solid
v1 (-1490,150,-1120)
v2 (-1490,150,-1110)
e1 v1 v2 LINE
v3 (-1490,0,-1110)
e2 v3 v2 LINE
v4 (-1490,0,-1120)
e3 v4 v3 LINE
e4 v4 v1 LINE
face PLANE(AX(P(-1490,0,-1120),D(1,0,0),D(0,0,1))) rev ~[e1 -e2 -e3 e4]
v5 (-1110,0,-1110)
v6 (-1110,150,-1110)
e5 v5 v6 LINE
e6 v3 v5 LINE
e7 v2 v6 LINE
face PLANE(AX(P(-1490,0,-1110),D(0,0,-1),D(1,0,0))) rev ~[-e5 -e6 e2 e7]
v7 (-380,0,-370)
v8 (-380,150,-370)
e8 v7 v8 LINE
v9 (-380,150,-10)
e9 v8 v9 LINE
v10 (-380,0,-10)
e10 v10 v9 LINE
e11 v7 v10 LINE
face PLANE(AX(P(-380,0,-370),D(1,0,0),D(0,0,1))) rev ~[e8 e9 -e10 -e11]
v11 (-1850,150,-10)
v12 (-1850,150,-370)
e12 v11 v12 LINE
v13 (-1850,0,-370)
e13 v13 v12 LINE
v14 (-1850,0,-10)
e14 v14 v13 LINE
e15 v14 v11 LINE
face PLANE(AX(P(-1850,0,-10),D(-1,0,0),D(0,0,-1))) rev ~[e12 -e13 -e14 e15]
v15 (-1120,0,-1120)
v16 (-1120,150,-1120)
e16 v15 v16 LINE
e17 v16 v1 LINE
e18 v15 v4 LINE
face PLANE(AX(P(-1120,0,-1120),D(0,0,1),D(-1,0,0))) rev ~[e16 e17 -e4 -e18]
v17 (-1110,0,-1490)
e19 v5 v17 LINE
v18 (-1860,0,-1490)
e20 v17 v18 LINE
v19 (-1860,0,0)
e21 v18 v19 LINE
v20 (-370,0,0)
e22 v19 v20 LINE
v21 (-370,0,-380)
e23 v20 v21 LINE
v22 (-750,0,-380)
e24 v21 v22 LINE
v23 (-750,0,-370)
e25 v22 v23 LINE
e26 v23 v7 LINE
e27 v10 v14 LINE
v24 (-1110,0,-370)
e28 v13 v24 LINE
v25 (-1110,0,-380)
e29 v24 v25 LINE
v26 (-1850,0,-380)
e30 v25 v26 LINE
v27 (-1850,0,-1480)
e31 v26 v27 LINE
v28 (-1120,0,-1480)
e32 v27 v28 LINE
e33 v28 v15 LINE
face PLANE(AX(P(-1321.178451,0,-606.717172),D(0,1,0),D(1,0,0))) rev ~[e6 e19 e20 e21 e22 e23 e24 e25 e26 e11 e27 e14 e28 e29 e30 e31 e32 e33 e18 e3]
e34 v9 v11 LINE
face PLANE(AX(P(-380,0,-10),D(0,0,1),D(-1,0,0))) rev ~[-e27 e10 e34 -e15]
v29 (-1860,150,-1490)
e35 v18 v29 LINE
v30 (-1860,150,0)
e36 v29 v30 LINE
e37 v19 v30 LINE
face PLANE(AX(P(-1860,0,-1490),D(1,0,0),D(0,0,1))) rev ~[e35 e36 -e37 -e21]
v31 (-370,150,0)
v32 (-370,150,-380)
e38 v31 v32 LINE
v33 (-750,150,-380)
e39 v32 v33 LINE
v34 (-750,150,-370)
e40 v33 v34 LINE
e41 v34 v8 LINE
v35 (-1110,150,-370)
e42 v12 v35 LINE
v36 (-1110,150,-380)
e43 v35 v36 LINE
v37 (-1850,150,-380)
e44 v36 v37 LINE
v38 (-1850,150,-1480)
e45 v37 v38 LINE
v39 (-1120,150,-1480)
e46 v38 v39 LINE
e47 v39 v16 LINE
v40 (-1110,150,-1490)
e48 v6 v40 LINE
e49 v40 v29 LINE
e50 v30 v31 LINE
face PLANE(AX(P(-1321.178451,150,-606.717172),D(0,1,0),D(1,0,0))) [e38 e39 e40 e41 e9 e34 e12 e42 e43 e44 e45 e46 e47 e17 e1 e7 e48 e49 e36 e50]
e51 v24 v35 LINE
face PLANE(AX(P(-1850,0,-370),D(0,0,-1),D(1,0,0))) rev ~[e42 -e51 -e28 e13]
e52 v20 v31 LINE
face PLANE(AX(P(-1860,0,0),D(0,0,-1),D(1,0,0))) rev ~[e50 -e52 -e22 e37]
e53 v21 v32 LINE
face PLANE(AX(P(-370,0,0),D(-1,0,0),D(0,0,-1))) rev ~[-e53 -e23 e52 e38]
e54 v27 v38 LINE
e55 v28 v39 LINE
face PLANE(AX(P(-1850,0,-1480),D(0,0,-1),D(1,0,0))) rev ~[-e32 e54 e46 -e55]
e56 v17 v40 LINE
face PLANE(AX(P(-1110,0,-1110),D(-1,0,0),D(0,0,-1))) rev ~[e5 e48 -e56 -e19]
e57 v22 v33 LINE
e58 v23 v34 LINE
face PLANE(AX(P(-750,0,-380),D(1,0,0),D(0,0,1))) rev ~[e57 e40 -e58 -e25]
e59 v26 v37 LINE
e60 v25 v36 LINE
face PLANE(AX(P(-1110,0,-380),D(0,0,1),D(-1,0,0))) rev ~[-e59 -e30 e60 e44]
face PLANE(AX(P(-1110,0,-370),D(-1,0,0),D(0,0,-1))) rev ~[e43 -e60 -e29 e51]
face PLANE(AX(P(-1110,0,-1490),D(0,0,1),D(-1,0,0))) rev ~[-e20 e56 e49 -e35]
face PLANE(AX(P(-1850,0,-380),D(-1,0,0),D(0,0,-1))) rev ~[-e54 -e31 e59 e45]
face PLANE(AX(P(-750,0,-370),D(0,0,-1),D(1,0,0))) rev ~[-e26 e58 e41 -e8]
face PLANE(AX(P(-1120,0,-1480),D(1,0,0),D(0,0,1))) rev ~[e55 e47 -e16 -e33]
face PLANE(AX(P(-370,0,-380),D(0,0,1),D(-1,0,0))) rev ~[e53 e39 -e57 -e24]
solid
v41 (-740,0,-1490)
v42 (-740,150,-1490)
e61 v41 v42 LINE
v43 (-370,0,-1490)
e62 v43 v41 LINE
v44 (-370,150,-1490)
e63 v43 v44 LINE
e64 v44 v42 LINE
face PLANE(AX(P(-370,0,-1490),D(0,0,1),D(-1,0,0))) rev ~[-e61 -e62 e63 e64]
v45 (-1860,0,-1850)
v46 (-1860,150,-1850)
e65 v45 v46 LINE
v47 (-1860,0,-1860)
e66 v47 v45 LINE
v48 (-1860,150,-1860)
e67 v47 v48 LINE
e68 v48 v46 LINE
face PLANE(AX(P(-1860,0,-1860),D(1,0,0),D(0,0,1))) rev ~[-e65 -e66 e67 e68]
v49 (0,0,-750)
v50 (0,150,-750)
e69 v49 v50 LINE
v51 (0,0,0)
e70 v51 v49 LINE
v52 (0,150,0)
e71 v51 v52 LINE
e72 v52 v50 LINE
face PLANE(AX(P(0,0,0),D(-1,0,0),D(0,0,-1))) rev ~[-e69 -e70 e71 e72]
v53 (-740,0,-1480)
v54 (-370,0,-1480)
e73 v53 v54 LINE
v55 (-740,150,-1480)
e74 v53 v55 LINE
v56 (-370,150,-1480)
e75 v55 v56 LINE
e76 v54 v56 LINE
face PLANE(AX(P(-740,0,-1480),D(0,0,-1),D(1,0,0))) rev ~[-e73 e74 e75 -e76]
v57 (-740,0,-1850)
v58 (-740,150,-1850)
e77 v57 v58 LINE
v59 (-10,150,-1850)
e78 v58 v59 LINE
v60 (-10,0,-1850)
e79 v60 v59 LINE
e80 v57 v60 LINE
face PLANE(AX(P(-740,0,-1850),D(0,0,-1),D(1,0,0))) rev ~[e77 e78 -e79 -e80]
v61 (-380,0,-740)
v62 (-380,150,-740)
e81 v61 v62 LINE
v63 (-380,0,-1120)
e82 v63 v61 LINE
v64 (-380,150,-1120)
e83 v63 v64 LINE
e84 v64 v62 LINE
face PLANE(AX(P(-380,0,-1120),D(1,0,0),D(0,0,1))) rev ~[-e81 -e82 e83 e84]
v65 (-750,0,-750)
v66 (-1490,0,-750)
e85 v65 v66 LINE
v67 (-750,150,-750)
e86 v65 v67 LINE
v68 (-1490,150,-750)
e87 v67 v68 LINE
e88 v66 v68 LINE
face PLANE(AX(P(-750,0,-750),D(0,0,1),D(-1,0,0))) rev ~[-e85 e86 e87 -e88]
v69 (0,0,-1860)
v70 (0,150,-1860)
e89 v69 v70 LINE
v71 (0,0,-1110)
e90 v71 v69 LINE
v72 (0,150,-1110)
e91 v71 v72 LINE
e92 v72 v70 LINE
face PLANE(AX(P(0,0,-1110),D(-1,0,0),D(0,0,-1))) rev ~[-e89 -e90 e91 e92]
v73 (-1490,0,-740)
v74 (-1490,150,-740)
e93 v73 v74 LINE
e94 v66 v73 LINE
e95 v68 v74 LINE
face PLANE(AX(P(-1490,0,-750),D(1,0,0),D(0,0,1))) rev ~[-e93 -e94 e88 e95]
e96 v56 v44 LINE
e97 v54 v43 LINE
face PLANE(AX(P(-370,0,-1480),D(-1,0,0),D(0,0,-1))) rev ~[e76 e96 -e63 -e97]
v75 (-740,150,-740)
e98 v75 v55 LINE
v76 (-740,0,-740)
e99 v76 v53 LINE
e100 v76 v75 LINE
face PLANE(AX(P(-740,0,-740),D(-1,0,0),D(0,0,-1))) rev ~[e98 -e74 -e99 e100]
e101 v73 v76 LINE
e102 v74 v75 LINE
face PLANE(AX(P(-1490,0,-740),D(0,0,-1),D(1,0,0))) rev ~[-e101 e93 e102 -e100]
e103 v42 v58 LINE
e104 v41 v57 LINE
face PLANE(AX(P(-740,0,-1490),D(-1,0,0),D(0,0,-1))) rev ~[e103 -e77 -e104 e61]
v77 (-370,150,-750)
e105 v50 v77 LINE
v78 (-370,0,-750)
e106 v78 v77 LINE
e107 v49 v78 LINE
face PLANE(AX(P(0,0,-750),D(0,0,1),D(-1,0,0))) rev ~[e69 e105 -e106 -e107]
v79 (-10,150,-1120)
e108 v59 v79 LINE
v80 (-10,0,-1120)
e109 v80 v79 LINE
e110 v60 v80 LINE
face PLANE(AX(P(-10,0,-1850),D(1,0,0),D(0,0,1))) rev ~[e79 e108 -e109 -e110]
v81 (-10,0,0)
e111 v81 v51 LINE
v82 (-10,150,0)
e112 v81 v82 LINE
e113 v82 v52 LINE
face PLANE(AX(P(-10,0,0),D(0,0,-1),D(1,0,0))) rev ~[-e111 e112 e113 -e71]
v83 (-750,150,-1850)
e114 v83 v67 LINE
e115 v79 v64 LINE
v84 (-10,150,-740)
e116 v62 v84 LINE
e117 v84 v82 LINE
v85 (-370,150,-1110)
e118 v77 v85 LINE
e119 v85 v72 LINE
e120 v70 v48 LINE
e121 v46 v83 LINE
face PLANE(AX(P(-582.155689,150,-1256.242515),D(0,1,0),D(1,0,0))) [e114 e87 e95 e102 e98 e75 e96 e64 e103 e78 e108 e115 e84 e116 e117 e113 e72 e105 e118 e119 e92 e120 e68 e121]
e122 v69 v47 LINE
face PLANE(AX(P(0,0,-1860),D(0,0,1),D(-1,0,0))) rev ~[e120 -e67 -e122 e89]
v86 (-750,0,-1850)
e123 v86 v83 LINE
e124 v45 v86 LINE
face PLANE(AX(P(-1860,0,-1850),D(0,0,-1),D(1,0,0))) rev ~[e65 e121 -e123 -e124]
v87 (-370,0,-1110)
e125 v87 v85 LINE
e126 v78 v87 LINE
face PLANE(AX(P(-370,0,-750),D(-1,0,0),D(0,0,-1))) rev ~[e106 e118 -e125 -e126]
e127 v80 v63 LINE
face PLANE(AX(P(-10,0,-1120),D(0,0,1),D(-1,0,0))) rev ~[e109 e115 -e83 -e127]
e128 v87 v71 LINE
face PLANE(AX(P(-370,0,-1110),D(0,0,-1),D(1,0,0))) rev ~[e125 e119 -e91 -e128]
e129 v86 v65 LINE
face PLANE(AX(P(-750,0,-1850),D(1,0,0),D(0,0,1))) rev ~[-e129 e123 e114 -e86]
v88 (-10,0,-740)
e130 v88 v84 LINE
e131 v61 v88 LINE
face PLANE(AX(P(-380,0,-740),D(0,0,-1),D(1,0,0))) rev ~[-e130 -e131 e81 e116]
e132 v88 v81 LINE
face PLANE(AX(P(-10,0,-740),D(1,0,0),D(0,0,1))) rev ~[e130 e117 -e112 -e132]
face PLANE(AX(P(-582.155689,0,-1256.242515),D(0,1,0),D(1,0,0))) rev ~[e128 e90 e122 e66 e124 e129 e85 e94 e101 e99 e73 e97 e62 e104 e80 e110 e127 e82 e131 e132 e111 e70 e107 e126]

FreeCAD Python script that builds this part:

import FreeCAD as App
import Part
import Sketcher
from FreeCAD import Vector


def add_polygon(sketch, points):
    """Adds a closed chain of lines whose ends are joined by coincident constraints."""
    first, n = sketch.GeometryCount, len(points)
    for a, b in zip(points, points[1:] + points[:1]):
        sketch.addGeometry(Part.LineSegment(App.Vector(*a, 0), App.Vector(*b, 0)), False)
    for i in range(n):
        sketch.addConstraint(Sketcher.Constraint("Coincident", first + i, 2, first + (i + 1) % n, 1))

doc = App.newDocument("Part")
params = doc.addObject("Spreadsheet::Sheet", "Params")
for row, (alias, value) in enumerate([
    ("sketch1_width", "1860 mm"),
    ("sketch1_width2", "1110 mm"),
    ("sketch1_width3", "740 mm"),
    ("sketch1_width4", "750 mm"),
    ("sketch1_height", "1100 mm"),
    ("pad1_length", "150 mm"),
    ("sketch2_width", "370 mm"),
    ("sketch2_width2", "1470 mm"),
    ("sketch2_width3", "740 mm"),
    ("sketch2_width4", "730 mm"),
    ("sketch2_width5", "750 mm"),
    ("pad2_length", "150 mm"),
], start=1):
    params.set(f"A{row}", alias)
    params.set(f"B{row}", "=" + value)
    params.setAlias(f"B{row}", alias)

body = doc.addObject("PartDesign::Body", "Body")

sketch1 = doc.addObject("Sketcher::SketchObject", "Sketch")
body.addObject(sketch1)
sketch1.AttachmentSupport = (doc.XZ_Plane, [""])
sketch1.MapMode = "FlatFace"
add_polygon(sketch1, [(0, -1860), (-1860, -1860), (-1860, -1850), (-750, -1850), (-750, -750), (-1490, -750), (-1490, -740), (-740, -740), (-740, -1480), (-370, -1480), (-370, -1490), (-740, -1490), (-740, -1850), (-10, -1850), (-10, -1120), (-380, -1120), (-380, -740), (-10, -740), (-10, 0), (0, 0), (0, -750), (-370, -750), (-370, -1110), (0, -1110)])
sketch1.addConstraint([
    Sketcher.Constraint("Horizontal", 0),
    Sketcher.Constraint("Vertical", 1),
    Sketcher.Constraint("Horizontal", 2),
    Sketcher.Constraint("Vertical", 3),
    Sketcher.Constraint("Horizontal", 4),
    Sketcher.Constraint("Vertical", 5),
    Sketcher.Constraint("Horizontal", 6),
    Sketcher.Constraint("Vertical", 7),
    Sketcher.Constraint("Horizontal", 8),
    Sketcher.Constraint("Vertical", 9),
    Sketcher.Constraint("Horizontal", 10),
    Sketcher.Constraint("Vertical", 11),
    Sketcher.Constraint("Horizontal", 12),
    Sketcher.Constraint("Vertical", 13),
    Sketcher.Constraint("Horizontal", 14),
    Sketcher.Constraint("Vertical", 15),
    Sketcher.Constraint("Horizontal", 16),
    Sketcher.Constraint("Vertical", 17),
    Sketcher.Constraint("Horizontal", 18),
    Sketcher.Constraint("Vertical", 19),
    Sketcher.Constraint("Horizontal", 20),
    Sketcher.Constraint("Vertical", 21),
    Sketcher.Constraint("Horizontal", 22),
    Sketcher.Constraint("Vertical", 23),
    Sketcher.Constraint("Coincident", 18, 2, -1, 1),
    Sketcher.Constraint("PointOnObject", 22, 2, -2),
    Sketcher.Constraint("Horizontal", 2, 2, 11, 2),
    Sketcher.Constraint("Horizontal", 6, 2, 15, 2),
    Sketcher.Constraint("Horizontal", 4, 2, 19, 2),
    Sketcher.Constraint("Vertical", 7, 2, 10, 2),
    Sketcher.Constraint("Vertical", 13, 2, 16, 2),
    Sketcher.Constraint("Vertical", 9, 2, 20, 2),
    Sketcher.Constraint("Equal", 10, 14),
    Sketcher.Constraint("Equal", 16, 20),
    Sketcher.Constraint("Equal", 18, 1),
    Sketcher.Constraint("Equal", 1, 5),
    Sketcher.Constraint("Equal", 4, 7),
    Sketcher.Constraint("Equal", 5, 9),
    Sketcher.Constraint("Equal", 12, 13),
    Sketcher.Constraint("Equal", 7, 17),
    Sketcher.Constraint("Equal", 6, 19),
    Sketcher.Constraint("Equal", 11, 21),
    Sketcher.Constraint("DistanceX", 0, 2, 0, 1, 1860.0),
    Sketcher.Constraint("DistanceX", 2, 1, 2, 2, 1110.0),
    Sketcher.Constraint("DistanceX", 4, 2, 4, 1, 740.0),
    Sketcher.Constraint("DistanceX", 6, 1, 6, 2, 750.0),
    Sketcher.Constraint("DistanceY", 3, 1, 3, 2, 1100.0),
])
sketch1.setExpression("Constraints[66]", "Params.sketch1_width")
sketch1.setExpression("Constraints[67]", "Params.sketch1_width2")
sketch1.setExpression("Constraints[68]", "Params.sketch1_width3")
sketch1.setExpression("Constraints[69]", "Params.sketch1_width4")
sketch1.setExpression("Constraints[70]", "Params.sketch1_height")
pad1 = doc.addObject("PartDesign::Pad", "Pad")
body.addObject(pad1)
pad1.Profile = sketch1
pad1.setExpression("Length", "Params.pad1_length")
pad1.Reversed = True
body2 = doc.addObject("PartDesign::Body", "Body001")

sketch2 = doc.addObject("Sketcher::SketchObject", "Sketch001")
body2.addObject(sketch2)
sketch2.AttachmentSupport = (doc.getObject("XZ_Plane001"), [""])
sketch2.MapMode = "FlatFace"
add_polygon(sketch2, [(-750, -370), (-380, -370), (-380, -10), (-1850, -10), (-1850, -370), (-1110, -370), (-1110, -380), (-1850, -380), (-1850, -1480), (-1120, -1480), (-1120, -1120), (-1490, -1120), (-1490, -1110), (-1110, -1110), (-1110, -1490), (-1860, -1490), (-1860, 0), (-370, 0), (-370, -380), (-750, -380)])
sketch2.addConstraint([
    Sketcher.Constraint("Horizontal", 0),
    Sketcher.Constraint("Vertical", 1),
    Sketcher.Constraint("Horizontal", 2),
    Sketcher.Constraint("Vertical", 3),
    Sketcher.Constraint("Horizontal", 4),
    Sketcher.Constraint("Vertical", 5),
    Sketcher.Constraint("Horizontal", 6),
    Sketcher.Constraint("Vertical", 7),
    Sketcher.Constraint("Horizontal", 8),
    Sketcher.Constraint("Vertical", 9),
    Sketcher.Constraint("Horizontal", 10),
    Sketcher.Constraint("Vertical", 11),
    Sketcher.Constraint("Horizontal", 12),
    Sketcher.Constraint("Vertical", 13),
    Sketcher.Constraint("Horizontal", 14),
    Sketcher.Constraint("Vertical", 15),
    Sketcher.Constraint("Horizontal", 16),
    Sketcher.Constraint("Vertical", 17),
    Sketcher.Constraint("Horizontal", 18),
    Sketcher.Constraint("Vertical", 19),
    Sketcher.Constraint("PointOnObject", 15, 2, -1),
    Sketcher.Constraint("Horizontal", 0, 2, 3, 2),
    Sketcher.Constraint("Horizontal", 6, 2, 17, 2),
    Sketcher.Constraint("Vertical", 3, 2, 6, 2),
    Sketcher.Constraint("Vertical", 5, 2, 12, 2),
    Sketcher.Constraint("Equal", 0, 10),
    Sketcher.Constraint("Equal", 12, 18),
    Sketcher.Constraint("Equal", 3, 9),
    Sketcher.Constraint("Equal", 5, 11),
    Sketcher.Constraint("Equal", 18, 13),
    Sketcher.Constraint("Equal", 16, 15),
    Sketcher.Constraint("Equal", 13, 17),
    Sketcher.Constraint("DistanceX", 0, 1, 0, 2, 370.0),
    Sketcher.Constraint("DistanceX", 2, 2, 2, 1, 1470.0),
    Sketcher.Constraint("DistanceX", 4, 1, 4, 2, 740.0),
    Sketcher.Constraint("DistanceX", 8, 1, 8, 2, 730.0),
    Sketcher.Constraint("DistanceX", 14, 2, 14, 1, 750.0),
    Sketcher.Constraint("DistanceY", 1, 1, 1, 2, 360.0),
    Sketcher.Constraint("DistanceY", 5, 2, 5, 1, 10.0),
    Sketcher.Constraint("DistanceX", 0, 2, -1, 1, 380.0),
])
sketch2.setExpression("Constraints[52]", "Params.sketch2_width")
sketch2.setExpression("Constraints[53]", "Params.sketch2_width2")
sketch2.setExpression("Constraints[54]", "Params.sketch2_width3")
sketch2.setExpression("Constraints[55]", "Params.sketch2_width4")
sketch2.setExpression("Constraints[56]", "Params.sketch2_width5")
pad2 = doc.addObject("PartDesign::Pad", "Pad001")
body2.addObject(pad2)
pad2.Profile = sketch2
pad2.setExpression("Length", "Params.pad2_length")
pad2.Reversed = True

doc.recompute()
